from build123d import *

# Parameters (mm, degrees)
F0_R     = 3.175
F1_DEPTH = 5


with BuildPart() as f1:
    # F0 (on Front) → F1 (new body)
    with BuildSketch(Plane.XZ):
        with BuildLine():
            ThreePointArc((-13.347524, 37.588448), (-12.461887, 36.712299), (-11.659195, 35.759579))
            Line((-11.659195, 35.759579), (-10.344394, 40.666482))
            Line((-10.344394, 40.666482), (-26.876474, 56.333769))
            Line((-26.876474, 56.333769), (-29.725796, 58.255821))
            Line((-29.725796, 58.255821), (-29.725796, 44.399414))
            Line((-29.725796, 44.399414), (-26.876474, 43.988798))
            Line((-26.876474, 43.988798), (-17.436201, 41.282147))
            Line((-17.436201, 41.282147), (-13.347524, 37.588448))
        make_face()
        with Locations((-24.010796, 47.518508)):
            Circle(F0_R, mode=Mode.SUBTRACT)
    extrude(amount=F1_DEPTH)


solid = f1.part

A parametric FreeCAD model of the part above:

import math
import FreeCAD as App
import Part
import Sketcher
Q = App.Units.Quantity

doc = App.newDocument("Part")
body = doc.addObject("PartDesign::Body", "Body")

sketch1 = body.newObject("Sketcher::SketchObject", "Sketch")
sketch1.AttachmentSupport = (doc.getObject("XZ_Plane"), [""])
sketch1.MapMode = "FlatFace"
sketch1.addGeometry(Part.ArcOfCircle(Part.Circle(App.Vector(-22.6, 27.4, 0), App.Vector(0, 0, 1), 13.7), math.radians(37.52), math.radians(47.91)), False)
sketch1.addGeometry(Part.LineSegment(App.Vector(-11.7, 35.8, 0), App.Vector(-10.3, 40.7, 0)), False)
sketch1.addGeometry(Part.LineSegment(App.Vector(-10.3, 40.7, 0), App.Vector(-26.9, 56.3, 0)), False)
sketch1.addGeometry(Part.LineSegment(App.Vector(-26.9, 56.3, 0), App.Vector(-29.7, 58.3, 0)), False)
sketch1.addGeometry(Part.LineSegment(App.Vector(-29.7, 58.3, 0), App.Vector(-29.7, 44.4, 0)), False)
sketch1.addGeometry(Part.LineSegment(App.Vector(-29.7, 44.4, 0), App.Vector(-26.9, 44, 0)), False)
sketch1.addGeometry(Part.LineSegment(App.Vector(-26.9, 44, 0), App.Vector(-17.4, 41.3, 0)), False)
sketch1.addGeometry(Part.LineSegment(App.Vector(-17.4, 41.3, 0), App.Vector(-13.3, 37.6, 0)), False)
sketch1.addGeometry(Part.Circle(App.Vector(-24, 47.5, 0), App.Vector(0, 0, 1), 3.2), False)
sketch1.addConstraint(Sketcher.Constraint("Coincident", 0, 1, 1, 1))
sketch1.addConstraint(Sketcher.Constraint("Coincident", 1, 2, 2, 1))
sketch1.addConstraint(Sketcher.Constraint("Coincident", 2, 2, 3, 1))
sketch1.addConstraint(Sketcher.Constraint("Coincident", 3, 2, 4, 1))
sketch1.addConstraint(Sketcher.Constraint("Coincident", 4, 2, 5, 1))
sketch1.addConstraint(Sketcher.Constraint("Coincident", 5, 2, 6, 1))
sketch1.addConstraint(Sketcher.Constraint("Coincident", 6, 2, 7, 1))
sketch1.addConstraint(Sketcher.Constraint("Tangent", 7, 2, 0, 2))
sketch1.addConstraint(Sketcher.Constraint("Vertical", 4))
sketch1.addConstraint(Sketcher.Constraint("Vertical", 2, 2, 5, 2))
sketch1.addConstraint(Sketcher.Constraint("Diameter", 8, Q("0.25 in")))
sketch1.addConstraint(Sketcher.Constraint("Angle", 1, Q("74.999997 deg")))
sketch1.addConstraint(Sketcher.Constraint("Distance", 1, Q("0.2 in")))
sketch1.addConstraint(Sketcher.Constraint("DistanceX", 3, 2, 8, 3, Q("0.225 in")))
sketch1.addConstraint(Sketcher.Constraint("Radius", 0, 13.748433))
sketch1.addConstraint(Sketcher.Constraint("DistanceY", 1, 2, 5, 2, Q("0.1307998 in")))
sketch1.addConstraint(Sketcher.Constraint("Distance", 2, 22.776601))
sketch1.addConstraint(Sketcher.Constraint("DistanceY", -1, 1, 5, 2, 43.988798))
sketch1.addConstraint(Sketcher.Constraint("DistanceX", 6, 2, -1, 1, 17.436201))
sketch1.addConstraint(Sketcher.Constraint("DistanceX", 8, 3, 0, 1, 12.351601))
sketch1.addConstraint(Sketcher.Constraint("DistanceY", 7, 2, 6, 2, 3.693699))
sketch1.addConstraint(Sketcher.Constraint("DistanceY", 4, 2, 4, 1, 13.856407))
sketch1.addConstraint(Sketcher.Constraint("DistanceX", 0, 3, -1, 1, 22.563891))
sketch1.addConstraint(Sketcher.Constraint("DistanceY", -1, 1, 2, 2, 56.333769))
sketch1.addConstraint(Sketcher.Constraint("DistanceY", -1, 1, 3, 2, 58.255821))
sketch1.addConstraint(Sketcher.Constraint("DistanceY", 0, 3, 8, 3, 20.131922))
sketch1.addConstraint(Sketcher.Constraint("DistanceY", 0, 1, 8, 3, 11.758929))
pad1 = body.newObject("PartDesign::Pad", "Pad")
pad1.Profile = sketch1
pad1.Length = 5

doc.recompute()
